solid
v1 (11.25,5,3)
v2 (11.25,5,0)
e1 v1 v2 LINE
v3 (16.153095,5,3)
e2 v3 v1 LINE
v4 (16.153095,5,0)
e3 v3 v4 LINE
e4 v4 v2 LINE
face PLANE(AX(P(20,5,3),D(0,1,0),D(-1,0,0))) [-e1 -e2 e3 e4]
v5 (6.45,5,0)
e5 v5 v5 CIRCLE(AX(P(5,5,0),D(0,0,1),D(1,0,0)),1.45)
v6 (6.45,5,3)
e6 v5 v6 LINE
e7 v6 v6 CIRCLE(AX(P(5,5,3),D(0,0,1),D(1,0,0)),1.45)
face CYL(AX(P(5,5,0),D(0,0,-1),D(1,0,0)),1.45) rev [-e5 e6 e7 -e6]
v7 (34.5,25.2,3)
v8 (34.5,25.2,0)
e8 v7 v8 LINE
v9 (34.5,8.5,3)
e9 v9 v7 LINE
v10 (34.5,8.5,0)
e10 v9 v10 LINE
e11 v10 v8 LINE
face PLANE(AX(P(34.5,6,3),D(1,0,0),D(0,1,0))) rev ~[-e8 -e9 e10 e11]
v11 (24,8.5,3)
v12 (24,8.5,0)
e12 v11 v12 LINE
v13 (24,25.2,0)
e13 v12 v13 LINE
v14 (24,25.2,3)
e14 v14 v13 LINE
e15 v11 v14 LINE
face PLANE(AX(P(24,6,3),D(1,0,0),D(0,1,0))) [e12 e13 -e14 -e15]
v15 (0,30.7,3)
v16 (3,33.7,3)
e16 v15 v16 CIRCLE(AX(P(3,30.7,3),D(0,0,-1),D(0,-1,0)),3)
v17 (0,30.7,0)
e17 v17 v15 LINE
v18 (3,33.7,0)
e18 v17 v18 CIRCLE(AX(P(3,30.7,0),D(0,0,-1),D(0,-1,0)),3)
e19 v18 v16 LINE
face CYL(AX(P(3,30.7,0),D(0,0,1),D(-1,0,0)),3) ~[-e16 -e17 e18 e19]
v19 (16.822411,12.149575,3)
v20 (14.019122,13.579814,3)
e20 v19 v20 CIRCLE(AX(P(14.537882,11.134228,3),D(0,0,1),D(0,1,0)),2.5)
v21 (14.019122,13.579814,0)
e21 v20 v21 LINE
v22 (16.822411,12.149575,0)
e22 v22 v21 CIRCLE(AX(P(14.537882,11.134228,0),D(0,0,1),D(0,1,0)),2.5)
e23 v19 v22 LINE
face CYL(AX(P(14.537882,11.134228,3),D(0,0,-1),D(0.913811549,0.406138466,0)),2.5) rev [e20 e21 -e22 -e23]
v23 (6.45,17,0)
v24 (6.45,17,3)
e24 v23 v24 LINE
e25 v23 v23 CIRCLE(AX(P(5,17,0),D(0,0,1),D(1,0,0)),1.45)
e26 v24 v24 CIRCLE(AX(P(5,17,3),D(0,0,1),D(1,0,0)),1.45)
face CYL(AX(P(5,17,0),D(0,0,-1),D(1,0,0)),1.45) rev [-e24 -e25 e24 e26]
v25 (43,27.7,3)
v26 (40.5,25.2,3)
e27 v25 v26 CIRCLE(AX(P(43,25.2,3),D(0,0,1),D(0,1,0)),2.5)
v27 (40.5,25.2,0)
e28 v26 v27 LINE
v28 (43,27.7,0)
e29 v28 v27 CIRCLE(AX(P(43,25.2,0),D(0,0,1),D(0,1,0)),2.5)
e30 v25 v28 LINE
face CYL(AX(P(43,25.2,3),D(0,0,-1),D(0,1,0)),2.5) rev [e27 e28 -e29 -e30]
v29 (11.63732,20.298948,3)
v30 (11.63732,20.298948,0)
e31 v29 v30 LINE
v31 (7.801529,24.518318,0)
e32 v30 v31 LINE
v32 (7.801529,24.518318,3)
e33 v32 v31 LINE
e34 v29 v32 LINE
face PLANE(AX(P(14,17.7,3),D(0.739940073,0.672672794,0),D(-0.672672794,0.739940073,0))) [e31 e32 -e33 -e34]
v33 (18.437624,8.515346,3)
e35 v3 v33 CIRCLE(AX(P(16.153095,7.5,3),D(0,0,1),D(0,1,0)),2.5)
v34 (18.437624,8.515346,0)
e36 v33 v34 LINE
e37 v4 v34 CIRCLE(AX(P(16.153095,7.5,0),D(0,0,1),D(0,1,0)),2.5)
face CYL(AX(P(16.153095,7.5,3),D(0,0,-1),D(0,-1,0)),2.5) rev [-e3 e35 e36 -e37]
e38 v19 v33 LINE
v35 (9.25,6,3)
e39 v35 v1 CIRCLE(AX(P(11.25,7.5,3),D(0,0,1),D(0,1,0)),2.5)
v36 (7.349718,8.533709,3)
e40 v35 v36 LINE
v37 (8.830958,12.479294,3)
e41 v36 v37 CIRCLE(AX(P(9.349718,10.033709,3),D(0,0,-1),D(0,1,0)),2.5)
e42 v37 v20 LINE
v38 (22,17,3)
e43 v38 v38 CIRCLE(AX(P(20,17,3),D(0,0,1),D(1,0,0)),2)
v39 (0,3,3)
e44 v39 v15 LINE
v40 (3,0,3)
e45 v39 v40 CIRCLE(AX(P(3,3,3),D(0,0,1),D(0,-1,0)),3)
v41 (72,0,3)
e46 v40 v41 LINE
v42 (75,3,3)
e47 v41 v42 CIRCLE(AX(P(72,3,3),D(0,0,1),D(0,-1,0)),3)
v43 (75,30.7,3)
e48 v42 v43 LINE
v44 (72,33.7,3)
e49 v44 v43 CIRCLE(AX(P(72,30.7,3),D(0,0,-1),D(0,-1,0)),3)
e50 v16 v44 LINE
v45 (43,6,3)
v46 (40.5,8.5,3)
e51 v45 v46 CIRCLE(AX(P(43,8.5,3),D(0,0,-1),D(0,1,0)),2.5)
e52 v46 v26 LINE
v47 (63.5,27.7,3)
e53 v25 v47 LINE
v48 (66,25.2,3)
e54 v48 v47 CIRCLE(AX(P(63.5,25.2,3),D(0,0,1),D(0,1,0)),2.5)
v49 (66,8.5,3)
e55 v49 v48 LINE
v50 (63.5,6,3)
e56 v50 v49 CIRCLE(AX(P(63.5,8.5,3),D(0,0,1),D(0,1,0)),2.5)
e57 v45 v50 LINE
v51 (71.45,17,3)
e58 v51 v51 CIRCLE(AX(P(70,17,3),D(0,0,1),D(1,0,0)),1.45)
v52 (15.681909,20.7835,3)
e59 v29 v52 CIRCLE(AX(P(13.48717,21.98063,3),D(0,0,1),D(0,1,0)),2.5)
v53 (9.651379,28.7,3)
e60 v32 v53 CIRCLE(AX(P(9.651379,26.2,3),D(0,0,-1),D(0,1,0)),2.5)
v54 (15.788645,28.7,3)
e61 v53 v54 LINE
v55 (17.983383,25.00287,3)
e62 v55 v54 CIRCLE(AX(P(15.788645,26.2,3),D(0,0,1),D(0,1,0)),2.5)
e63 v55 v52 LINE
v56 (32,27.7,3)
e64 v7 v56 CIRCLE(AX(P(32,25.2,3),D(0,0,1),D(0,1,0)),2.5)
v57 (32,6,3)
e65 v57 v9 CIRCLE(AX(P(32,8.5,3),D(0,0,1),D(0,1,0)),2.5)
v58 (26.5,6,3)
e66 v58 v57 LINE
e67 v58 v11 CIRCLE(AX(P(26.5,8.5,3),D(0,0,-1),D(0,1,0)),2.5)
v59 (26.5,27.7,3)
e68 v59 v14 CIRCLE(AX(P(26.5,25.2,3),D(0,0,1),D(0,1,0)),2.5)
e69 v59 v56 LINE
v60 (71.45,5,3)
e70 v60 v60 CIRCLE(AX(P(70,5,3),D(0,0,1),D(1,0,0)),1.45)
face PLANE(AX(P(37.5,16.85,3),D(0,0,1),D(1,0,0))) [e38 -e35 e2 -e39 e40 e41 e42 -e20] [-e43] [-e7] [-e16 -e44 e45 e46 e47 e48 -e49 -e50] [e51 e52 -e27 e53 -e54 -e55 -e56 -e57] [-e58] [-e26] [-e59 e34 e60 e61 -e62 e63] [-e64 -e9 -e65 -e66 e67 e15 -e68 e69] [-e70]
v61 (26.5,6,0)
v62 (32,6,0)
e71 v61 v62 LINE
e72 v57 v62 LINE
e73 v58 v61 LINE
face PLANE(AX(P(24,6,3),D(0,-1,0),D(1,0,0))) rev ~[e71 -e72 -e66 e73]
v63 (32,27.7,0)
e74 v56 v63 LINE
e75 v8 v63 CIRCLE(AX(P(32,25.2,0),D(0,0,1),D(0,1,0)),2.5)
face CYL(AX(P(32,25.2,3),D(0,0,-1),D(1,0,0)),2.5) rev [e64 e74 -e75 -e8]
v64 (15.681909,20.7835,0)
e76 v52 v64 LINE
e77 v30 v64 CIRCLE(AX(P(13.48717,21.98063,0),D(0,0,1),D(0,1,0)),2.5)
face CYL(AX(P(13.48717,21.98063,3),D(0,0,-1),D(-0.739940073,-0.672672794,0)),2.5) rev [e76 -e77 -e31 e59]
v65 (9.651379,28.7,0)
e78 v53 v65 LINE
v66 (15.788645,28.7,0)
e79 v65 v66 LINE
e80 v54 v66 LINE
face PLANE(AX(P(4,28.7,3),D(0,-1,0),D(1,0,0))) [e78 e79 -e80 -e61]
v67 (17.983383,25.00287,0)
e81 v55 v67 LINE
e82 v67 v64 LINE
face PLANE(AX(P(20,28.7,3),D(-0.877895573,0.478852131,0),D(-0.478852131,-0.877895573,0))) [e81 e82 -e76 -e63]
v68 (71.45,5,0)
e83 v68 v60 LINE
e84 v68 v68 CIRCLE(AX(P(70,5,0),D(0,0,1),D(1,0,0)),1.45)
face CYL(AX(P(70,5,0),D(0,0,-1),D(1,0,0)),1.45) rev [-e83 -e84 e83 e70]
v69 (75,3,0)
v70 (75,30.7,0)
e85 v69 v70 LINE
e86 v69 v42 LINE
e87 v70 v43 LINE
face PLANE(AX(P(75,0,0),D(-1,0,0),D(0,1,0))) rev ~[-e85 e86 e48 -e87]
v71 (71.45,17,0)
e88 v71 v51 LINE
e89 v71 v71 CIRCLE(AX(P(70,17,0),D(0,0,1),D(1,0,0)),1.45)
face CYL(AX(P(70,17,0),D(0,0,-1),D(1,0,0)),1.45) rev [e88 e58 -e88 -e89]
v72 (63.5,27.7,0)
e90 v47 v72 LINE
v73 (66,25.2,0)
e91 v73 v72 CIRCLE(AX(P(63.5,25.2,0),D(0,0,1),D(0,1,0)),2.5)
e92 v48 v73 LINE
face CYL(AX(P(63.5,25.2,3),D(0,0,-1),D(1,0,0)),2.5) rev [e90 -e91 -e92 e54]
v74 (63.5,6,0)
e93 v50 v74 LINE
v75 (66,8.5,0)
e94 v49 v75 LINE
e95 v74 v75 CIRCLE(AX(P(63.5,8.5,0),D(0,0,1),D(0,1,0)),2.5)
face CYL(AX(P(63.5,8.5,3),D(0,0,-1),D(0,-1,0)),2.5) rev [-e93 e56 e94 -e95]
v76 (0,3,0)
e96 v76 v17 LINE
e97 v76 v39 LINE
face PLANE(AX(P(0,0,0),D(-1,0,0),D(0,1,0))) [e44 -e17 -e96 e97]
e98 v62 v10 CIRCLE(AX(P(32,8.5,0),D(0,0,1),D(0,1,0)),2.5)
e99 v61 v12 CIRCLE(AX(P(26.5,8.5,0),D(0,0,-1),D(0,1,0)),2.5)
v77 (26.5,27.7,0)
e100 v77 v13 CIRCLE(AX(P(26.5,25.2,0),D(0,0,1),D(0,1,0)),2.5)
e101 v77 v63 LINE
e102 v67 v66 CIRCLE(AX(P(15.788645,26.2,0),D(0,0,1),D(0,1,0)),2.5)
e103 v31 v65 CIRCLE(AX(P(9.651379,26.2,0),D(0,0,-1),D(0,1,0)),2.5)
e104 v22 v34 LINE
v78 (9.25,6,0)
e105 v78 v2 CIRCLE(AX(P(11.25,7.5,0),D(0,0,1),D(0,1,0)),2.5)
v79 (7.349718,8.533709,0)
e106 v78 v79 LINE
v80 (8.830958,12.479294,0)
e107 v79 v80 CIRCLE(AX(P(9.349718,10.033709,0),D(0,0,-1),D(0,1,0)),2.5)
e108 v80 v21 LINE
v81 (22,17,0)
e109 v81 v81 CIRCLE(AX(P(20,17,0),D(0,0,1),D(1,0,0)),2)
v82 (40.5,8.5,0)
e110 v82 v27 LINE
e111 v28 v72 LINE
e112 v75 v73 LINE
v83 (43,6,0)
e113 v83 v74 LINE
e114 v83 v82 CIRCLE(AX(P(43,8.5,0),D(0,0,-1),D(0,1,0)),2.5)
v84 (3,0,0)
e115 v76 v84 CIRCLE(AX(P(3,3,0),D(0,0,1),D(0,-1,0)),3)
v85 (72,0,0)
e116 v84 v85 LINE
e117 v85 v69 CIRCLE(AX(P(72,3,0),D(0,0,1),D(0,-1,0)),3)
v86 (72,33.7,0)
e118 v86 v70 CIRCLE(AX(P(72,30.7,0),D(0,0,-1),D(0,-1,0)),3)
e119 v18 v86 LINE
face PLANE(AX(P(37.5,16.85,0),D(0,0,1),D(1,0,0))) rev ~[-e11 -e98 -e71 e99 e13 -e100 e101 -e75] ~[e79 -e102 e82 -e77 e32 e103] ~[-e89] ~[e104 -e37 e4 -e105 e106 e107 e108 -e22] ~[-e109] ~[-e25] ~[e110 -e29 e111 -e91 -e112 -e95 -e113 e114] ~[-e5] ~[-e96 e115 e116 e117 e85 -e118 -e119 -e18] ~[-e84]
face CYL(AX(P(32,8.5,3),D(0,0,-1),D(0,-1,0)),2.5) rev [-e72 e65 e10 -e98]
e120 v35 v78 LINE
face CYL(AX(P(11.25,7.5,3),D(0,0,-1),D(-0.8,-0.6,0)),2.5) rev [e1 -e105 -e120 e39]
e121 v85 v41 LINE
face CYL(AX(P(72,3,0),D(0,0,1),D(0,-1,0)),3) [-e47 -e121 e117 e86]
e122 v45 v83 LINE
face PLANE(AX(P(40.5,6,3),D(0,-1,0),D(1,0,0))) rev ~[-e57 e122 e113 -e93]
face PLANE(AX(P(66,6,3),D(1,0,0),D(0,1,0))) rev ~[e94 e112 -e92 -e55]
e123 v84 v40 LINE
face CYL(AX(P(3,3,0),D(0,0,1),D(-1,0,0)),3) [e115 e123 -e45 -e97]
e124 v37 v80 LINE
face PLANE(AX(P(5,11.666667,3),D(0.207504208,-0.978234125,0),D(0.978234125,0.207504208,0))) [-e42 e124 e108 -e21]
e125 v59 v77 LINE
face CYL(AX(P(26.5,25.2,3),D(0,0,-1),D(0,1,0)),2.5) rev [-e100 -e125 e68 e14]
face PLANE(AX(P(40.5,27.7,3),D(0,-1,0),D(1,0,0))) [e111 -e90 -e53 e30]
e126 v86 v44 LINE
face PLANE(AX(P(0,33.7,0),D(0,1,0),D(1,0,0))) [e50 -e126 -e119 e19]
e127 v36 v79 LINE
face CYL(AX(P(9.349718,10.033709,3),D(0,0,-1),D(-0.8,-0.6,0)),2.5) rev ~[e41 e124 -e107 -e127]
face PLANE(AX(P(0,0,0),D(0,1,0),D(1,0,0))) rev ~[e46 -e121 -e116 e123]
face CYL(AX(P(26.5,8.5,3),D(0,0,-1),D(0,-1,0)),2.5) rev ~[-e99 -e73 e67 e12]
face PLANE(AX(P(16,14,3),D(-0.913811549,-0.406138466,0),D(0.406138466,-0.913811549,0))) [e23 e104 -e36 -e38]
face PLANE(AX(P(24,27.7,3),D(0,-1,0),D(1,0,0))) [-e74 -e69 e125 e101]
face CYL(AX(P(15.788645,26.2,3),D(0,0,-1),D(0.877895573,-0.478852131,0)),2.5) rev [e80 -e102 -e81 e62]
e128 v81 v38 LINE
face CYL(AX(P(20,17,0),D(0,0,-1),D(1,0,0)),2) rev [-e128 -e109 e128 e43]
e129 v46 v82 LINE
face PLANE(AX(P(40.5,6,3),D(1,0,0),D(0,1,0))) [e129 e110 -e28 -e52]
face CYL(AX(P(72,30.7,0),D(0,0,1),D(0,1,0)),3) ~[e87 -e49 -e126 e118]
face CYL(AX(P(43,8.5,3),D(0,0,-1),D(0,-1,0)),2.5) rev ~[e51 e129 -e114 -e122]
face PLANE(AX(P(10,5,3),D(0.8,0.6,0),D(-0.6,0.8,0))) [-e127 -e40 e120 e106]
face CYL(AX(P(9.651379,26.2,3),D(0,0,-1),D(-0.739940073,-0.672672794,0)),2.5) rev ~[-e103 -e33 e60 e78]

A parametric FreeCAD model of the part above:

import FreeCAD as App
import Part
import Sketcher
from FreeCAD import Vector


def edges_at(feature, points):
    """Names of the edges that pass closest to the given points."""
    edges = feature.Shape.Edges
    near = lambda p: min(range(len(edges)), key=lambda i: edges[i].distToShape(Part.Vertex(*p))[0])
    return sorted({f"Edge{near(p) + 1}" for p in points})

doc = App.newDocument("Part")
body = doc.addObject("PartDesign::Body", "Body")

# Sketch on XY plane
sketch1 = doc.addObject("Sketcher::SketchObject", "Sketch")
body.addObject(sketch1)
sketch1.AttachmentSupport = (doc.XY_Plane, [""])
sketch1.MapMode = "FlatFace"
sketch1.addGeometry([
    Part.LineSegment(Vector(0, 33.7, 0), Vector(0, 0, 0)),  # 0
    Part.LineSegment(Vector(0, 0, 0), Vector(75, 0, 0)),  # 1
    Part.LineSegment(Vector(75, 0, 0), Vector(75, 33.7, 0)),  # 2
    Part.LineSegment(Vector(75, 33.7, 0), Vector(0, 33.7, 0)),  # 3
    Part.Circle(Vector(5, 5, 0), Vector(0, 0, 1), 1.4),  # 4
    Part.Circle(Vector(70, 5, 0), Vector(0, 0, 1), 1.4),  # 5
    Part.Circle(Vector(5, 17, 0), Vector(0, 0, 1), 1.4),  # 6
    Part.Circle(Vector(20, 17, 0), Vector(0, 0, 1), 2),  # 7
    Part.Circle(Vector(70, 17, 0), Vector(0, 0, 1), 1.4),  # 8
], False)
sketch1.addConstraint([
    Sketcher.Constraint("Coincident", 0, 2, 1, 1),
    Sketcher.Constraint("Coincident", 1, 2, 2, 1),
    Sketcher.Constraint("Coincident", 2, 2, 3, 1),
    Sketcher.Constraint("Coincident", 3, 2, 0, 1),
    Sketcher.Constraint("Vertical", 0),
    Sketcher.Constraint("Horizontal", 1),
    Sketcher.Constraint("Vertical", 2),
    Sketcher.Constraint("Horizontal", 3),
    Sketcher.Constraint("Coincident", 0, 2, -1, 1),
    Sketcher.Constraint("Equal", 4, 5),
    Sketcher.Constraint("Equal", 5, 6),
    Sketcher.Constraint("Equal", 6, 8),
    Sketcher.Constraint("Horizontal", 4, 3, 5, 3),
    Sketcher.Constraint("Horizontal", 6, 3, 7, 3),
    Sketcher.Constraint("Horizontal", 7, 3, 8, 3),
    Sketcher.Constraint("Vertical", 4, 3, 6, 3),
    Sketcher.Constraint("Vertical", 5, 3, 8, 3),
    Sketcher.Constraint("Diameter", 7, 4.0),
    Sketcher.Constraint("Diameter", 4, 2.9),
    Sketcher.Constraint("DistanceX", 1, 1, 1, 2, 75.0),
    Sketcher.Constraint("DistanceY", 0, 2, 0, 1, 33.7),
    Sketcher.Constraint("DistanceX", -1, 1, 4, 3, 5.0),
    Sketcher.Constraint("DistanceY", -1, 1, 4, 3, 5.0),
    Sketcher.Constraint("DistanceX", -1, 1, 5, 3, 70.0),
    Sketcher.Constraint("DistanceY", -1, 1, 6, 3, 17.0),
    Sketcher.Constraint("DistanceX", -1, 1, 7, 3, 20.0),
])
pad1 = doc.addObject("PartDesign::Pad", "Pad")
body.addObject(pad1)
pad1.Profile = sketch1
pad1.Length = 3

# Sketch on XY plane
sketch2 = doc.addObject("Sketcher::SketchObject", "Sketch001")
body.addObject(sketch2)
sketch2.AttachmentSupport = (doc.XY_Plane, [""])
sketch2.MapMode = "FlatFace"
sketch2.AttachmentOffset = App.Placement(Vector(0, 0, 3), App.Rotation())
sketch2.addGeometry([
    Part.LineSegment(Vector(20, 29, 0), Vector(4, 29, 0)),  # 0
    Part.LineSegment(Vector(4, 29, 0), Vector(14, 18, 0)),  # 1
    Part.LineSegment(Vector(14, 18, 0), Vector(20, 29, 0)),  # 2
    Part.LineSegment(Vector(40, 28, 0), Vector(40, 6, 0)),  # 3
    Part.LineSegment(Vector(40, 6, 0), Vector(66, 6, 0)),  # 4
    Part.LineSegment(Vector(66, 6, 0), Vector(66, 28, 0)),  # 5
    Part.LineSegment(Vector(66, 28, 0), Vector(40, 28, 0)),  # 6
    Part.LineSegment(Vector(24, 28, 0), Vector(24, 6, 0)),  # 7
    Part.LineSegment(Vector(24, 6, 0), Vector(34, 6, 0)),  # 8
    Part.LineSegment(Vector(34, 6, 0), Vector(34, 28, 0)),  # 9
    Part.LineSegment(Vector(34, 28, 0), Vector(24, 28, 0)),  # 10
    Part.LineSegment(Vector(16, 14, 0), Vector(5, 12, 0)),  # 11
    Part.LineSegment(Vector(5, 12, 0), Vector(10, 5, 0)),  # 12
    Part.LineSegment(Vector(10, 5, 0), Vector(20, 5, 0)),  # 13
    Part.LineSegment(Vector(20, 5, 0), Vector(16, 14, 0)),  # 14
], False)
sketch2.addConstraint([
    Sketcher.Constraint("Coincident", 0, 2, 1, 1),
    Sketcher.Constraint("Coincident", 1, 2, 2, 1),
    Sketcher.Constraint("Coincident", 2, 2, 0, 1),
    Sketcher.Constraint("Coincident", 3, 2, 4, 1),
    Sketcher.Constraint("Coincident", 4, 2, 5, 1),
    Sketcher.Constraint("Coincident", 5, 2, 6, 1),
    Sketcher.Constraint("Coincident", 6, 2, 3, 1),
    Sketcher.Constraint("Coincident", 7, 2, 8, 1),
    Sketcher.Constraint("Coincident", 8, 2, 9, 1),
    Sketcher.Constraint("Coincident", 9, 2, 10, 1),
    Sketcher.Constraint("Coincident", 10, 2, 7, 1),
    Sketcher.Constraint("Coincident", 11, 2, 12, 1),
    Sketcher.Constraint("Coincident", 12, 2, 13, 1),
    Sketcher.Constraint("Coincident", 13, 2, 14, 1),
    Sketcher.Constraint("Coincident", 14, 2, 11, 1),
    Sketcher.Constraint("Horizontal", 0),
    Sketcher.Constraint("Vertical", 3),
    Sketcher.Constraint("Horizontal", 4),
    Sketcher.Constraint("Vertical", 5),
    Sketcher.Constraint("Horizontal", 6),
    Sketcher.Constraint("Vertical", 7),
    Sketcher.Constraint("Horizontal", 8),
    Sketcher.Constraint("Vertical", 9),
    Sketcher.Constraint("Horizontal", 10),
    Sketcher.Constraint("Horizontal", 13),
    Sketcher.Constraint("Horizontal", 4, 2, 7, 2),
    Sketcher.Constraint("Horizontal", 6, 2, 9, 2),
    Sketcher.Constraint("Vertical", 2, 2, 13, 2),
    Sketcher.Constraint("DistanceX", 0, 2, 0, 1, 16.0),
    Sketcher.Constraint("DistanceX", 13, 1, 13, 2, 10.0),
    Sketcher.Constraint("DistanceX", 4, 1, 4, 2, 25.5),
    Sketcher.Constraint("DistanceX", 8, 1, 8, 2, 10.5),
    Sketcher.Constraint("DistanceY", 3, 2, 3, 1, 21.7),
    Sketcher.Constraint("DistanceX", -1, 1, 0, 2, 4.0),
    Sketcher.Constraint("DistanceX", -1, 1, 1, 2, 14.0),
    Sketcher.Constraint("DistanceY", -1, 1, 3, 2, 6.0),
    Sketcher.Constraint("DistanceX", -1, 1, 4, 2, 66.0),
    Sketcher.Constraint("DistanceX", -1, 1, 7, 2, 24.0),
    Sketcher.Constraint("DistanceX", -1, 1, 11, 2, 5.0),
    Sketcher.Constraint("DistanceY", -1, 1, 12, 2, 5.0),
    Sketcher.Constraint("DistanceX", -1, 1, 14, 2, 16.0),
    Sketcher.Constraint("DistanceY", -1, 1, 14, 2, 14.0),
    Sketcher.Constraint("DistanceY", 1, 2, 0, 2, 11.0),
    Sketcher.Constraint("DistanceY", 5, 2, 2, 2, 1.0),
    Sketcher.Constraint("Distance", 11, 11.244752),
])
pocket1 = doc.addObject("PartDesign::Pocket", "Pocket")
body.addObject(pocket1)
pocket1.Profile = sketch2
pocket1.Length = 10
doc.recompute()

fillet = doc.addObject("PartDesign::Fillet", "Fillet")
body.addObject(fillet)
fillet.Base = (pocket1, edges_at(pocket1, [
    (40.5, 6, 1.5),
    (40.5, 27.7, 1.5),
    (66, 27.7, 1.5),
    (66, 6, 1.5),
    (10, 5, 1.5),
    (5, 11.667, 1.5),
    (16, 14, 1.5),
    (20, 5, 1.5),
    (14, 17.7, 1.5),
    (4, 28.7, 1.5),
    (20, 28.7, 1.5),
    (24, 6, 1.5),
    (24, 27.7, 1.5),
    (34.5, 27.7, 1.5),
    (34.5, 6, 1.5),
]))
fillet.Radius = 2.5
doc.recompute()

fillet2 = doc.addObject("PartDesign::Fillet", "Fillet001")
body.addObject(fillet2)
fillet2.Base = (fillet, edges_at(fillet, [
    (0, 33.7, 1.5),
    (75, 33.7, 1.5),
    (75, 0, 1.5),
    (0, 0, 1.5),
]))
fillet2.Radius = 3

doc.recompute()
